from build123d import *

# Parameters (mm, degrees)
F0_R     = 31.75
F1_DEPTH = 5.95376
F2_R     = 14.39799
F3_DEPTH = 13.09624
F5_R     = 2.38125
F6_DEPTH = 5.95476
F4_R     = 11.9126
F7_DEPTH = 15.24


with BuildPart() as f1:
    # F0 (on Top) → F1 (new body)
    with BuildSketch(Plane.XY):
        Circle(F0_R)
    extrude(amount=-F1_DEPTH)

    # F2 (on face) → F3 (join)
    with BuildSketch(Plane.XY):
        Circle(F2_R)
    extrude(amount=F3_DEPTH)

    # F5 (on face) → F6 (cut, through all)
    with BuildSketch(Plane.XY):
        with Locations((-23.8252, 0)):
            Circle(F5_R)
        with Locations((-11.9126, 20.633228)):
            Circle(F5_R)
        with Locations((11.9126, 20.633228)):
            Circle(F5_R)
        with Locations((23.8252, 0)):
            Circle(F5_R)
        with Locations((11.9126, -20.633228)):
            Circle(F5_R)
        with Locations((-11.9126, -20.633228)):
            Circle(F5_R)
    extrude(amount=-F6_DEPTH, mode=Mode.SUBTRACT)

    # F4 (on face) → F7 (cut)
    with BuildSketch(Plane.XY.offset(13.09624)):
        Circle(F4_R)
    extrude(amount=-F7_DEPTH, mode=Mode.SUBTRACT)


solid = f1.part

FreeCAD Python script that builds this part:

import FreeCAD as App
import Part
import Sketcher

V = App.Vector
Q = App.Units.Quantity

doc = App.newDocument("Part")
params = doc.addObject("Spreadsheet::Sheet", "Params")
for row, (alias, value) in enumerate([
    ("sketch1_diameter", "2.5 in"),
    ("pad1_length", "0.2344 in"),
    ("pad2_length", "0.5156 in"),
    ("sketch3_diameter", "0.1875 in"),
    ("sketch4_diameter", "0.938 in"),
    ("pocket2_length", "0.6 in"),
], start=1):
    params.set(f"A{row}", alias)
    params.set(f"B{row}", "=" + value)
    params.setAlias(f"B{row}", alias)

body = doc.addObject("PartDesign::Body", "Body")

# Sketch on XY plane
sketch1 = body.newObject("Sketcher::SketchObject", "Sketch")
sketch1.AttachmentSupport = (doc.getObject("XY_Plane"), [""])
sketch1.MapMode = "FlatFace"
sketch1.addGeometry(Part.Circle(V(0, 0, 0), V(0, 0, 1), 31.75), False)
sketch1.addConstraint([
    Sketcher.Constraint("Coincident", 0, 3, -1, 1),
    Sketcher.Constraint("Diameter", 0, Q("2.5 in")),
])
sketch1.setExpression("Constraints[1]", "Params.sketch1_diameter")
pad1 = body.newObject("PartDesign::Pad", "Pad")
pad1.Profile = sketch1
pad1.setExpression("Length", "Params.pad1_length")
pad1.Reversed = True

# Sketch on XY plane
sketch2 = body.newObject("Sketcher::SketchObject", "Sketch001")
sketch2.AttachmentSupport = (doc.getObject("XY_Plane"), [""])
sketch2.MapMode = "FlatFace"
sketch2.addGeometry(Part.Circle(V(0, 0, 0), V(0, 0, 1), 14.39799), False)
sketch2.addConstraint([
    Sketcher.Constraint("Coincident", 0, 3, -1, 1),
    Sketcher.Constraint("Diameter", 0, Q("1.1337 in")),
])
pad2 = body.newObject("PartDesign::Pad", "Pad001")
pad2.Profile = sketch2
pad2.setExpression("Length", "Params.pad2_length")

# Sketch on XY plane
sketch3 = body.newObject("Sketcher::SketchObject", "Sketch002")
sketch3.AttachmentSupport = (doc.getObject("XY_Plane"), [""])
sketch3.MapMode = "FlatFace"
sketch3.addGeometry([
    Part.Circle(V(-23.8252, 0, 0), V(0, 0, 1), 2.38125),  # 0
    Part.Circle(V(-11.9126, 20.633228, 0), V(0, 0, 1), 2.38125),  # 1
    Part.Circle(V(11.9126, 20.633228, 0), V(0, 0, 1), 2.38125),  # 2
    Part.Circle(V(23.8252, 0, 0), V(0, 0, 1), 2.38125),  # 3
    Part.Circle(V(11.9126, -20.633228, 0), V(0, 0, 1), 2.38125),  # 4
    Part.Circle(V(-11.9126, -20.633228, 0), V(0, 0, 1), 2.38125),  # 5
], False)
sketch3.addConstraint([
    Sketcher.Constraint("Equal", 0, 1),
    Sketcher.Constraint("Equal", 1, 2),
    Sketcher.Constraint("Equal", 2, 3),
    Sketcher.Constraint("Equal", 3, 4),
    Sketcher.Constraint("Equal", 4, 5),
    Sketcher.Constraint("Symmetric", 0, 3, 3, 3, -1, 1),
    Sketcher.Constraint("Symmetric", 1, 3, 4, 3, -1, 1),
    Sketcher.Constraint("Symmetric", 2, 3, 5, 3, -1, 1),
    Sketcher.Constraint("Symmetric", 1, 3, 2, 3, -2),
    Sketcher.Constraint("PointOnObject", 0, 3, -1),
    Sketcher.Constraint("Diameter", 0, Q("0.1875 in")),
    Sketcher.Constraint("DistanceX", 0, 3, -1, 1, Q("0.938 in")),
    Sketcher.Constraint("DistanceX", 1, 3, -1, 1, Q("0.469 in")),
    Sketcher.Constraint("DistanceY", -1, 1, 1, 3, Q("20.633228 mm")),
])
sketch3.setExpression("Constraints[10]", "Params.sketch3_diameter")
pocket1 = body.newObject("PartDesign::Pocket", "Pocket")
pocket1.Profile = sketch3
pocket1.Type = "ThroughAll"

# Sketch on XY plane
sketch4 = body.newObject("Sketcher::SketchObject", "Sketch003")
sketch4.AttachmentSupport = (doc.getObject("XY_Plane"), [""])
sketch4.MapMode = "FlatFace"
sketch4.AttachmentOffset = App.Placement(V(0, 0, 0.5156 * 25.4), App.Rotation())
sketch4.addGeometry(Part.Circle(V(0, 0, 0), V(0, 0, 1), 11.9126), False)
sketch4.addConstraint([
    Sketcher.Constraint("Coincident", 0, 3, -1, 1),
    Sketcher.Constraint("Diameter", 0, Q("0.938 in")),
])
sketch4.setExpression("Constraints[1]", "Params.sketch4_diameter")
pocket2 = body.newObject("PartDesign::Pocket", "Pocket001")
pocket2.Profile = sketch4
pocket2.setExpression("Length", "Params.pocket2_length")

doc.recompute()
